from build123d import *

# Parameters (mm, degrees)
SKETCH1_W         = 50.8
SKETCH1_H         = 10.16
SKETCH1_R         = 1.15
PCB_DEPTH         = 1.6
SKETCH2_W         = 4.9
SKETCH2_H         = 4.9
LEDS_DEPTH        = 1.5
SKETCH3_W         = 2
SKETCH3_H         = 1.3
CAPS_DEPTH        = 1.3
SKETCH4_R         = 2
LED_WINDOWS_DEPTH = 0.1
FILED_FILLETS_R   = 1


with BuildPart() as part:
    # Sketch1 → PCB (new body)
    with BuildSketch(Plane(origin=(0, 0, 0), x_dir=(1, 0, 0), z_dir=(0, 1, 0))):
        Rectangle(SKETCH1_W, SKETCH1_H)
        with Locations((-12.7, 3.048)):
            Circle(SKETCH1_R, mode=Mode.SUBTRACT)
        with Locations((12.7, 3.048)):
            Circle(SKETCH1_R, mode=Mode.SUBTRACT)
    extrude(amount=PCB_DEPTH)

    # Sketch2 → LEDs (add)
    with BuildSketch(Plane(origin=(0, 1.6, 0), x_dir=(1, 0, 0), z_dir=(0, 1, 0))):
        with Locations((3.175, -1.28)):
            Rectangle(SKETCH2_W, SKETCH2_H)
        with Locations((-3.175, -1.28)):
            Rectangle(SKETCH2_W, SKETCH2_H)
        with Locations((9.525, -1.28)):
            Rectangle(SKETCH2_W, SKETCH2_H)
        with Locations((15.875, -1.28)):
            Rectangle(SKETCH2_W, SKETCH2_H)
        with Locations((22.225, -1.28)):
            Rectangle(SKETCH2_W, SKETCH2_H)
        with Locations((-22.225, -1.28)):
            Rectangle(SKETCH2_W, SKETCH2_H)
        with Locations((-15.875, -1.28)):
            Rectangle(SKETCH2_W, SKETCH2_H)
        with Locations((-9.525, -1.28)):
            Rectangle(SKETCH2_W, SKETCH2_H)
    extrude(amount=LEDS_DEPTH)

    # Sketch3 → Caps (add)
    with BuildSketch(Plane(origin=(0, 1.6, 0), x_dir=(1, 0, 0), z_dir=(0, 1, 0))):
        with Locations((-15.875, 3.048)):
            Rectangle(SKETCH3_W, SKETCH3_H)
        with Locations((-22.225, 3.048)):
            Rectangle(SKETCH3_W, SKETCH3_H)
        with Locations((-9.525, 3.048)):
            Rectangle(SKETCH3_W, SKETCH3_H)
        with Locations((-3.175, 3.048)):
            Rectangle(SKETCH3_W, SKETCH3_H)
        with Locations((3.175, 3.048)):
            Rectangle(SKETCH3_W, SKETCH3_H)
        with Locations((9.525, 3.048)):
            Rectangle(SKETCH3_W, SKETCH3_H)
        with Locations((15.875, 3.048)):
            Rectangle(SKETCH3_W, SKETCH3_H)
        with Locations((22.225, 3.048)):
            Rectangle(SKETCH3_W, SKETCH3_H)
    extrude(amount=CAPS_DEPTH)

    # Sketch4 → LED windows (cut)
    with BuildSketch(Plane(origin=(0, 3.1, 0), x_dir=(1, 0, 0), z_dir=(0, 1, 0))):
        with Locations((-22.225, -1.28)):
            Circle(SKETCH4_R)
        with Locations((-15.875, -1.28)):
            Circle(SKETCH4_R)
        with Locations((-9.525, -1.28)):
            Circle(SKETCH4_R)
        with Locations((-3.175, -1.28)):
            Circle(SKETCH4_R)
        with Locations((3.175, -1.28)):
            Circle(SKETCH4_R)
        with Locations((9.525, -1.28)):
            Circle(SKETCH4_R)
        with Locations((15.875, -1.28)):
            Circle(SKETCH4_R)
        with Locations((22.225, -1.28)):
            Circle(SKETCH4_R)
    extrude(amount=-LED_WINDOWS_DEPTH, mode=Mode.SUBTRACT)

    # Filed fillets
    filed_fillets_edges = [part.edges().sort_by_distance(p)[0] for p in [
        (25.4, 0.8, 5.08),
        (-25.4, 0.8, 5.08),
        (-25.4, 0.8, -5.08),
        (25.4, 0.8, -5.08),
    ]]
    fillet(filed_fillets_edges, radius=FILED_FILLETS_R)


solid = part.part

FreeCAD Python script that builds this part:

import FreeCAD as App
import Part
import Sketcher


def edges_at(feature, points):
    """Names of the edges that pass closest to the given points."""
    edges = feature.Shape.Edges
    near = lambda p: min(range(len(edges)), key=lambda i: edges[i].distToShape(Part.Vertex(*p))[0])
    return sorted({f"Edge{near(p) + 1}" for p in points})


def add_polygon(sketch, points):
    """Adds a closed chain of lines whose ends are joined by coincident constraints."""
    first, n = sketch.GeometryCount, len(points)
    for a, b in zip(points, points[1:] + points[:1]):
        sketch.addGeometry(Part.LineSegment(App.Vector(*a, 0), App.Vector(*b, 0)), False)
    for i in range(n):
        sketch.addConstraint(Sketcher.Constraint("Coincident", first + i, 2, first + (i + 1) % n, 1))

doc = App.newDocument("Part")
body = doc.addObject("PartDesign::Body", "Body")

sketch1 = body.newObject("Sketcher::SketchObject", "Sketch")
sketch1.AttachmentSupport = (doc.getObject("XZ_Plane"), [""])
sketch1.MapMode = "FlatFace"
add_polygon(sketch1, [(-25.4, -5.1), (-25.4, 5.1), (25.4, 5.1), (25.4, -5.1)])
sketch1.addGeometry(Part.Circle(App.Vector(-12.7, -3, 0), App.Vector(0, 0, 1), 1.1), False)
sketch1.addGeometry(Part.Circle(App.Vector(12.7, -3, 0), App.Vector(0, 0, 1), 1.1), False)
sketch1.addConstraint(Sketcher.Constraint("Vertical", 0))
sketch1.addConstraint(Sketcher.Constraint("Horizontal", 1))
sketch1.addConstraint(Sketcher.Constraint("Vertical", 2))
sketch1.addConstraint(Sketcher.Constraint("Horizontal", 3))
sketch1.addConstraint(Sketcher.Constraint("Equal", 4, 5))
sketch1.addConstraint(Sketcher.Constraint("Symmetric", 0, 2, 2, 2, -1, 1))
sketch1.addConstraint(Sketcher.Constraint("Symmetric", 4, 3, 5, 3, -2))
sketch1.addConstraint(Sketcher.Constraint("Diameter", 4, 2.3))
sketch1.addConstraint(Sketcher.Constraint("DistanceX", 1, 1, 1, 2, 50.8))
sketch1.addConstraint(Sketcher.Constraint("DistanceY", 0, 1, 0, 2, 10.16))
sketch1.addConstraint(Sketcher.Constraint("DistanceX", 4, 3, -1, 1, 12.7))
sketch1.addConstraint(Sketcher.Constraint("DistanceY", 4, 3, -1, 1, 3.048))
pad1 = body.newObject("PartDesign::Pad", "Pad")
pad1.Profile = sketch1
pad1.Length = 1.6
pad1.Reversed = True

sketch2 = body.newObject("Sketcher::SketchObject", "Sketch001")
sketch2.AttachmentSupport = (doc.getObject("XZ_Plane"), [""])
sketch2.MapMode = "FlatFace"
sketch2.AttachmentOffset = App.Placement(App.Vector(0, 0, -1.6), App.Rotation())
add_polygon(sketch2, [(0.7, -1.2), (0.7, 3.7), (5.6, 3.7), (5.6, -1.2)])
add_polygon(sketch2, [(-5.6, -1.2), (-5.6, 3.7), (-0.7, 3.7), (-0.7, -1.2)])
add_polygon(sketch2, [(7.1, -1.2), (7.1, 3.7), (12, 3.7), (12, -1.2)])
add_polygon(sketch2, [(13.4, -1.2), (13.4, 3.7), (18.3, 3.7), (18.3, -1.2)])
add_polygon(sketch2, [(19.8, -1.2), (19.8, 3.7), (24.7, 3.7), (24.7, -1.2)])
add_polygon(sketch2, [(-24.7, -1.2), (-24.7, 3.7), (-19.8, 3.7), (-19.8, -1.2)])
add_polygon(sketch2, [(-18.3, -1.2), (-18.3, 3.7), (-13.4, 3.7), (-13.4, -1.2)])
add_polygon(sketch2, [(-12, -1.2), (-12, 3.7), (-7.1, 3.7), (-7.1, -1.2)])
sketch2.addConstraint(Sketcher.Constraint("Vertical", 0))
sketch2.addConstraint(Sketcher.Constraint("Horizontal", 1))
sketch2.addConstraint(Sketcher.Constraint("Vertical", 2))
sketch2.addConstraint(Sketcher.Constraint("Horizontal", 3))
sketch2.addConstraint(Sketcher.Constraint("Vertical", 4))
sketch2.addConstraint(Sketcher.Constraint("Horizontal", 5))
sketch2.addConstraint(Sketcher.Constraint("Vertical", 6))
sketch2.addConstraint(Sketcher.Constraint("Horizontal", 7))
sketch2.addConstraint(Sketcher.Constraint("Vertical", 8))
sketch2.addConstraint(Sketcher.Constraint("Horizontal", 9))
sketch2.addConstraint(Sketcher.Constraint("Vertical", 10))
sketch2.addConstraint(Sketcher.Constraint("Horizontal", 11))
sketch2.addConstraint(Sketcher.Constraint("Vertical", 12))
sketch2.addConstraint(Sketcher.Constraint("Horizontal", 13))
sketch2.addConstraint(Sketcher.Constraint("Vertical", 14))
sketch2.addConstraint(Sketcher.Constraint("Horizontal", 15))
sketch2.addConstraint(Sketcher.Constraint("Vertical", 16))
sketch2.addConstraint(Sketcher.Constraint("Horizontal", 17))
sketch2.addConstraint(Sketcher.Constraint("Vertical", 18))
sketch2.addConstraint(Sketcher.Constraint("Horizontal", 19))
sketch2.addConstraint(Sketcher.Constraint("Vertical", 20))
sketch2.addConstraint(Sketcher.Constraint("Horizontal", 21))
sketch2.addConstraint(Sketcher.Constraint("Vertical", 22))
sketch2.addConstraint(Sketcher.Constraint("Horizontal", 23))
sketch2.addConstraint(Sketcher.Constraint("Vertical", 24))
sketch2.addConstraint(Sketcher.Constraint("Horizontal", 25))
sketch2.addConstraint(Sketcher.Constraint("Vertical", 26))
sketch2.addConstraint(Sketcher.Constraint("Horizontal", 27))
sketch2.addConstraint(Sketcher.Constraint("Vertical", 28))
sketch2.addConstraint(Sketcher.Constraint("Horizontal", 29))
sketch2.addConstraint(Sketcher.Constraint("Vertical", 30))
sketch2.addConstraint(Sketcher.Constraint("Horizontal", 31))
sketch2.addConstraint(Sketcher.Constraint("Symmetric", 1, 2, 4, 2, -2))
sketch2.addConstraint(Sketcher.Constraint("Symmetric", 3, 2, 6, 2, -2))
sketch2.addConstraint(Sketcher.Constraint("Symmetric", 17, 2, 20, 2, -2))
sketch2.addConstraint(Sketcher.Constraint("Symmetric", 19, 2, 22, 2, -2))
sketch2.addConstraint(Sketcher.Constraint("Symmetric", 13, 2, 24, 2, -2))
sketch2.addConstraint(Sketcher.Constraint("Symmetric", 15, 2, 26, 2, -2))
sketch2.addConstraint(Sketcher.Constraint("Symmetric", 9, 2, 28, 2, -2))
sketch2.addConstraint(Sketcher.Constraint("Symmetric", 11, 2, 30, 2, -2))
sketch2.addConstraint(Sketcher.Constraint("Horizontal", 5, 2, 8, 2))
sketch2.addConstraint(Sketcher.Constraint("Horizontal", 7, 2, 10, 2))
sketch2.addConstraint(Sketcher.Constraint("Horizontal", 9, 2, 12, 2))
sketch2.addConstraint(Sketcher.Constraint("Horizontal", 11, 2, 14, 2))
sketch2.addConstraint(Sketcher.Constraint("Horizontal", 13, 2, 16, 2))
sketch2.addConstraint(Sketcher.Constraint("Horizontal", 15, 2, 18, 2))
sketch2.addConstraint(Sketcher.Constraint("Equal", 7, 9))
sketch2.addConstraint(Sketcher.Constraint("Equal", 11, 13))
sketch2.addConstraint(Sketcher.Constraint("Equal", 15, 17))
sketch2.addConstraint(Sketcher.Constraint("Equal", 31, 0))
sketch2.addConstraint(Sketcher.Constraint("DistanceX", 1, 1, 1, 2, 4.9))
sketch2.addConstraint(Sketcher.Constraint("DistanceX", 5, 2, 8, 2, 7.8))
sketch2.addConstraint(Sketcher.Constraint("DistanceX", 1, 2, 12, 2, 7.8))
sketch2.addConstraint(Sketcher.Constraint("DistanceX", 9, 2, 16, 2, 7.8))
sketch2.addConstraint(Sketcher.Constraint("DistanceY", -1, 1, 0, 2, 3.73))
sketch2.addConstraint(Sketcher.Constraint("DistanceX", 4, 2, 0, 2, 6.35))
pad2 = body.newObject("PartDesign::Pad", "Pad001")
pad2.Profile = sketch2
pad2.Length = 1.5
pad2.Reversed = True

sketch3 = body.newObject("Sketcher::SketchObject", "Sketch002")
sketch3.AttachmentSupport = (doc.getObject("XZ_Plane"), [""])
sketch3.MapMode = "FlatFace"
sketch3.AttachmentOffset = App.Placement(App.Vector(0, 0, -1.6), App.Rotation())
add_polygon(sketch3, [(-16.9, -3.7), (-16.9, -2.4), (-14.9, -2.4), (-14.9, -3.7)])
add_polygon(sketch3, [(-23.2, -3.7), (-23.2, -2.4), (-21.2, -2.4), (-21.2, -3.7)])
add_polygon(sketch3, [(-10.5, -3.7), (-10.5, -2.4), (-8.5, -2.4), (-8.5, -3.7)])
add_polygon(sketch3, [(-4.2, -3.7), (-4.2, -2.4), (-2.2, -2.4), (-2.2, -3.7)])
add_polygon(sketch3, [(2.2, -3.7), (2.2, -2.4), (4.2, -2.4), (4.2, -3.7)])
add_polygon(sketch3, [(8.5, -3.7), (8.5, -2.4), (10.5, -2.4), (10.5, -3.7)])
add_polygon(sketch3, [(14.9, -3.7), (14.9, -2.4), (16.9, -2.4), (16.9, -3.7)])
add_polygon(sketch3, [(21.2, -3.7), (21.2, -2.4), (23.2, -2.4), (23.2, -3.7)])
sketch3.addConstraint(Sketcher.Constraint("Vertical", 0))
sketch3.addConstraint(Sketcher.Constraint("Horizontal", 1))
sketch3.addConstraint(Sketcher.Constraint("Vertical", 2))
sketch3.addConstraint(Sketcher.Constraint("Horizontal", 3))
sketch3.addConstraint(Sketcher.Constraint("Vertical", 4))
sketch3.addConstraint(Sketcher.Constraint("Horizontal", 5))
sketch3.addConstraint(Sketcher.Constraint("Vertical", 6))
sketch3.addConstraint(Sketcher.Constraint("Horizontal", 7))
sketch3.addConstraint(Sketcher.Constraint("Vertical", 8))
sketch3.addConstraint(Sketcher.Constraint("Horizontal", 9))
sketch3.addConstraint(Sketcher.Constraint("Vertical", 10))
sketch3.addConstraint(Sketcher.Constraint("Horizontal", 11))
sketch3.addConstraint(Sketcher.Constraint("Vertical", 12))
sketch3.addConstraint(Sketcher.Constraint("Horizontal", 13))
sketch3.addConstraint(Sketcher.Constraint("Vertical", 14))
sketch3.addConstraint(Sketcher.Constraint("Horizontal", 15))
sketch3.addConstraint(Sketcher.Constraint("Vertical", 16))
sketch3.addConstraint(Sketcher.Constraint("Horizontal", 17))
sketch3.addConstraint(Sketcher.Constraint("Vertical", 18))
sketch3.addConstraint(Sketcher.Constraint("Horizontal", 19))
sketch3.addConstraint(Sketcher.Constraint("Vertical", 20))
sketch3.addConstraint(Sketcher.Constraint("Horizontal", 21))
sketch3.addConstraint(Sketcher.Constraint("Vertical", 22))
sketch3.addConstraint(Sketcher.Constraint("Horizontal", 23))
sketch3.addConstraint(Sketcher.Constraint("Vertical", 24))
sketch3.addConstraint(Sketcher.Constraint("Horizontal", 25))
sketch3.addConstraint(Sketcher.Constraint("Vertical", 26))
sketch3.addConstraint(Sketcher.Constraint("Horizontal", 27))
sketch3.addConstraint(Sketcher.Constraint("Vertical", 28))
sketch3.addConstraint(Sketcher.Constraint("Horizontal", 29))
sketch3.addConstraint(Sketcher.Constraint("Vertical", 30))
sketch3.addConstraint(Sketcher.Constraint("Horizontal", 31))
sketch3.addConstraint(Sketcher.Constraint("Symmetric", 13, 2, 16, 2, -2))
sketch3.addConstraint(Sketcher.Constraint("Symmetric", 15, 2, 18, 2, -2))
sketch3.addConstraint(Sketcher.Constraint("Symmetric", 9, 2, 20, 2, -2))
sketch3.addConstraint(Sketcher.Constraint("Symmetric", 11, 2, 22, 2, -2))
sketch3.addConstraint(Sketcher.Constraint("Symmetric", 1, 2, 24, 2, -2))
sketch3.addConstraint(Sketcher.Constraint("Symmetric", 3, 2, 26, 2, -2))
sketch3.addConstraint(Sketcher.Constraint("Symmetric", 5, 2, 28, 2, -2))
sketch3.addConstraint(Sketcher.Constraint("Symmetric", 7, 2, 30, 2, -2))
sketch3.addConstraint(Sketcher.Constraint("Horizontal", 1, 2, 4, 2))
sketch3.addConstraint(Sketcher.Constraint("Horizontal", 3, 2, 6, 2))
sketch3.addConstraint(Sketcher.Constraint("Horizontal", 5, 2, 8, 2))
sketch3.addConstraint(Sketcher.Constraint("Horizontal", 7, 2, 10, 2))
sketch3.addConstraint(Sketcher.Constraint("Horizontal", 9, 2, 12, 2))
sketch3.addConstraint(Sketcher.Constraint("Horizontal", 11, 2, 14, 2))
sketch3.addConstraint(Sketcher.Constraint("Equal", 3, 5))
sketch3.addConstraint(Sketcher.Constraint("Equal", 7, 9))
sketch3.addConstraint(Sketcher.Constraint("Equal", 11, 13))
sketch3.addConstraint(Sketcher.Constraint("DistanceX", 1, 1, 1, 2, 2.0))
sketch3.addConstraint(Sketcher.Constraint("DistanceY", 0, 1, 0, 2, 1.3))
sketch3.addConstraint(Sketcher.Constraint("DistanceX", 5, 2, 8, 2, 10.7))
sketch3.addConstraint(Sketcher.Constraint("DistanceX", 1, 2, 12, 2, 10.7))
sketch3.addConstraint(Sketcher.Constraint("DistanceX", 9, 2, 16, 2, 10.7))
sketch3.addConstraint(Sketcher.Constraint("DistanceX", 4, 2, 0, 2, 6.35))
sketch3.addConstraint(Sketcher.Constraint("DistanceY", 0, 2, -1, 1, 2.398))
pad3 = body.newObject("PartDesign::Pad", "Pad002")
pad3.Profile = sketch3
pad3.Length = 1.3
pad3.Reversed = True

sketch4 = body.newObject("Sketcher::SketchObject", "Sketch003")
sketch4.AttachmentSupport = (doc.getObject("XZ_Plane"), [""])
sketch4.MapMode = "FlatFace"
sketch4.AttachmentOffset = App.Placement(App.Vector(0, 0, -3.1), App.Rotation())
sketch4.addGeometry(Part.Circle(App.Vector(-22.2, 1.3, 0), App.Vector(0, 0, 1), 2), False)
sketch4.addGeometry(Part.Circle(App.Vector(-15.9, 1.3, 0), App.Vector(0, 0, 1), 2), False)
sketch4.addGeometry(Part.Circle(App.Vector(-9.5, 1.3, 0), App.Vector(0, 0, 1), 2), False)
sketch4.addGeometry(Part.Circle(App.Vector(-3.2, 1.3, 0), App.Vector(0, 0, 1), 2), False)
sketch4.addGeometry(Part.Circle(App.Vector(3.2, 1.3, 0), App.Vector(0, 0, 1), 2), False)
sketch4.addGeometry(Part.Circle(App.Vector(9.5, 1.3, 0), App.Vector(0, 0, 1), 2), False)
sketch4.addGeometry(Part.Circle(App.Vector(15.9, 1.3, 0), App.Vector(0, 0, 1), 2), False)
sketch4.addGeometry(Part.Circle(App.Vector(22.2, 1.3, 0), App.Vector(0, 0, 1), 2), False)
sketch4.addConstraint(Sketcher.Constraint("Equal", 0, 1))
sketch4.addConstraint(Sketcher.Constraint("Equal", 1, 2))
sketch4.addConstraint(Sketcher.Constraint("Equal", 2, 3))
sketch4.addConstraint(Sketcher.Constraint("Equal", 3, 4))
sketch4.addConstraint(Sketcher.Constraint("Equal", 4, 5))
sketch4.addConstraint(Sketcher.Constraint("Equal", 5, 6))
sketch4.addConstraint(Sketcher.Constraint("Equal", 6, 7))
sketch4.addConstraint(Sketcher.Constraint("Symmetric", 3, 3, 4, 3, -2))
sketch4.addConstraint(Sketcher.Constraint("Symmetric", 2, 3, 5, 3, -2))
sketch4.addConstraint(Sketcher.Constraint("Symmetric", 1, 3, 6, 3, -2))
sketch4.addConstraint(Sketcher.Constraint("Symmetric", 0, 3, 7, 3, -2))
sketch4.addConstraint(Sketcher.Constraint("Horizontal", 0, 3, 1, 3))
sketch4.addConstraint(Sketcher.Constraint("Horizontal", 1, 3, 2, 3))
sketch4.addConstraint(Sketcher.Constraint("Horizontal", 2, 3, 3, 3))
sketch4.addConstraint(Sketcher.Constraint("Diameter", 0, 4.0))
sketch4.addConstraint(Sketcher.Constraint("DistanceX", 0, 3, 2, 3, 12.7))
sketch4.addConstraint(Sketcher.Constraint("DistanceX", 1, 3, 3, 3, 12.7))
sketch4.addConstraint(Sketcher.Constraint("DistanceX", 2, 3, 4, 3, 12.7))
sketch4.addConstraint(Sketcher.Constraint("DistanceY", -1, 1, 0, 3, 1.28))
sketch4.addConstraint(Sketcher.Constraint("DistanceX", 0, 3, 1, 3, 6.35))
pocket1 = body.newObject("PartDesign::Pocket", "Pocket")
pocket1.Profile = sketch4
pocket1.Length = 0.1
pocket1.Reversed = True
doc.recompute()

fillet = body.newObject("PartDesign::Fillet", "Fillet")
fillet.Base = (pocket1, edges_at(pocket1, [
    (25.4, 0.8, 5.08),
    (-25.4, 0.8, 5.08),
    (-25.4, 0.8, -5.08),
    (25.4, 0.8, -5.08),
]))
fillet.Radius = 1

doc.recompute()
